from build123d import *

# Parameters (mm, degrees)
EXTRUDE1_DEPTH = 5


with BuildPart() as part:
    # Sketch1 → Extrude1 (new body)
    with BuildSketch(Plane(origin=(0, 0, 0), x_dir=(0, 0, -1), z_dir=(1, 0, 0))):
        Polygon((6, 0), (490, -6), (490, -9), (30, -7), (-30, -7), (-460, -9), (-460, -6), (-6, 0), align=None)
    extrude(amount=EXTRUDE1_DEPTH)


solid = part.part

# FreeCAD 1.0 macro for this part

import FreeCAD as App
import Part
import Sketcher

doc = App.newDocument("Part")
body = doc.addObject("PartDesign::Body", "Body")

# Sketch on YZ plane
sketch1 = body.newObject("Sketcher::SketchObject", "Sketch")
sketch1.AttachmentSupport = (doc.getObject("YZ_Plane"), [""])
sketch1.MapMode = "FlatFace"
sketch1.addGeometry(Part.LineSegment(App.Vector(-6, -490, 0), App.Vector(0, -6, 0)), False)
sketch1.addGeometry(Part.LineSegment(App.Vector(0, -6, 0), App.Vector(0, 6, 0)), False)
sketch1.addGeometry(Part.LineSegment(App.Vector(0, 6, 0), App.Vector(-6, 460, 0)), False)
sketch1.addGeometry(Part.LineSegment(App.Vector(-6, 460, 0), App.Vector(-9, 460, 0)), False)
sketch1.addGeometry(Part.LineSegment(App.Vector(-9, 460, 0), App.Vector(-7, 30, 0)), False)
sketch1.addGeometry(Part.LineSegment(App.Vector(-7, 30, 0), App.Vector(-7, -30, 0)), False)
sketch1.addGeometry(Part.LineSegment(App.Vector(-7, -30, 0), App.Vector(-9, -490, 0)), False)
sketch1.addGeometry(Part.LineSegment(App.Vector(-9, -490, 0), App.Vector(-6, -490, 0)), False)
sketch1.addConstraint(Sketcher.Constraint("Coincident", 0, 2, 1, 1))
sketch1.addConstraint(Sketcher.Constraint("Coincident", 1, 2, 2, 1))
sketch1.addConstraint(Sketcher.Constraint("Coincident", 2, 2, 3, 1))
sketch1.addConstraint(Sketcher.Constraint("Coincident", 3, 2, 4, 1))
sketch1.addConstraint(Sketcher.Constraint("Coincident", 4, 2, 5, 1))
sketch1.addConstraint(Sketcher.Constraint("Coincident", 5, 2, 6, 1))
sketch1.addConstraint(Sketcher.Constraint("Coincident", 6, 2, 7, 1))
sketch1.addConstraint(Sketcher.Constraint("Coincident", 7, 2, 0, 1))
sketch1.addConstraint(Sketcher.Constraint("Vertical", 1))
sketch1.addConstraint(Sketcher.Constraint("Horizontal", 3))
sketch1.addConstraint(Sketcher.Constraint("Vertical", 5))
sketch1.addConstraint(Sketcher.Constraint("Horizontal", 7))
sketch1.addConstraint(Sketcher.Constraint("Symmetric", 0, 2, 1, 2, -1, 1))
sketch1.addConstraint(Sketcher.Constraint("Vertical", 3, 2, 6, 2))
sketch1.addConstraint(Sketcher.Constraint("Vertical", 2, 2, 7, 2))
sketch1.addConstraint(Sketcher.Constraint("DistanceX", 3, 2, 3, 1, 3.0))
sketch1.addConstraint(Sketcher.Constraint("DistanceY", 1, 1, 1, 2, 12.0))
sketch1.addConstraint(Sketcher.Constraint("DistanceY", 5, 2, 5, 1, 60.0))
sketch1.addConstraint(Sketcher.Constraint("DistanceX", 2, 2, -1, 1, 6.0))
sketch1.addConstraint(Sketcher.Constraint("DistanceY", -1, 1, 2, 2, 460.0))
sketch1.addConstraint(Sketcher.Constraint("DistanceX", 4, 2, -1, 1, 7.0))
sketch1.addConstraint(Sketcher.Constraint("DistanceY", -1, 1, 4, 2, 30.0))
sketch1.addConstraint(Sketcher.Constraint("DistanceY", 6, 2, -1, 1, 490.0))
pad1 = body.newObject("PartDesign::Pad", "Pad")
pad1.Profile = sketch1
pad1.Length = 5

doc.recompute()
